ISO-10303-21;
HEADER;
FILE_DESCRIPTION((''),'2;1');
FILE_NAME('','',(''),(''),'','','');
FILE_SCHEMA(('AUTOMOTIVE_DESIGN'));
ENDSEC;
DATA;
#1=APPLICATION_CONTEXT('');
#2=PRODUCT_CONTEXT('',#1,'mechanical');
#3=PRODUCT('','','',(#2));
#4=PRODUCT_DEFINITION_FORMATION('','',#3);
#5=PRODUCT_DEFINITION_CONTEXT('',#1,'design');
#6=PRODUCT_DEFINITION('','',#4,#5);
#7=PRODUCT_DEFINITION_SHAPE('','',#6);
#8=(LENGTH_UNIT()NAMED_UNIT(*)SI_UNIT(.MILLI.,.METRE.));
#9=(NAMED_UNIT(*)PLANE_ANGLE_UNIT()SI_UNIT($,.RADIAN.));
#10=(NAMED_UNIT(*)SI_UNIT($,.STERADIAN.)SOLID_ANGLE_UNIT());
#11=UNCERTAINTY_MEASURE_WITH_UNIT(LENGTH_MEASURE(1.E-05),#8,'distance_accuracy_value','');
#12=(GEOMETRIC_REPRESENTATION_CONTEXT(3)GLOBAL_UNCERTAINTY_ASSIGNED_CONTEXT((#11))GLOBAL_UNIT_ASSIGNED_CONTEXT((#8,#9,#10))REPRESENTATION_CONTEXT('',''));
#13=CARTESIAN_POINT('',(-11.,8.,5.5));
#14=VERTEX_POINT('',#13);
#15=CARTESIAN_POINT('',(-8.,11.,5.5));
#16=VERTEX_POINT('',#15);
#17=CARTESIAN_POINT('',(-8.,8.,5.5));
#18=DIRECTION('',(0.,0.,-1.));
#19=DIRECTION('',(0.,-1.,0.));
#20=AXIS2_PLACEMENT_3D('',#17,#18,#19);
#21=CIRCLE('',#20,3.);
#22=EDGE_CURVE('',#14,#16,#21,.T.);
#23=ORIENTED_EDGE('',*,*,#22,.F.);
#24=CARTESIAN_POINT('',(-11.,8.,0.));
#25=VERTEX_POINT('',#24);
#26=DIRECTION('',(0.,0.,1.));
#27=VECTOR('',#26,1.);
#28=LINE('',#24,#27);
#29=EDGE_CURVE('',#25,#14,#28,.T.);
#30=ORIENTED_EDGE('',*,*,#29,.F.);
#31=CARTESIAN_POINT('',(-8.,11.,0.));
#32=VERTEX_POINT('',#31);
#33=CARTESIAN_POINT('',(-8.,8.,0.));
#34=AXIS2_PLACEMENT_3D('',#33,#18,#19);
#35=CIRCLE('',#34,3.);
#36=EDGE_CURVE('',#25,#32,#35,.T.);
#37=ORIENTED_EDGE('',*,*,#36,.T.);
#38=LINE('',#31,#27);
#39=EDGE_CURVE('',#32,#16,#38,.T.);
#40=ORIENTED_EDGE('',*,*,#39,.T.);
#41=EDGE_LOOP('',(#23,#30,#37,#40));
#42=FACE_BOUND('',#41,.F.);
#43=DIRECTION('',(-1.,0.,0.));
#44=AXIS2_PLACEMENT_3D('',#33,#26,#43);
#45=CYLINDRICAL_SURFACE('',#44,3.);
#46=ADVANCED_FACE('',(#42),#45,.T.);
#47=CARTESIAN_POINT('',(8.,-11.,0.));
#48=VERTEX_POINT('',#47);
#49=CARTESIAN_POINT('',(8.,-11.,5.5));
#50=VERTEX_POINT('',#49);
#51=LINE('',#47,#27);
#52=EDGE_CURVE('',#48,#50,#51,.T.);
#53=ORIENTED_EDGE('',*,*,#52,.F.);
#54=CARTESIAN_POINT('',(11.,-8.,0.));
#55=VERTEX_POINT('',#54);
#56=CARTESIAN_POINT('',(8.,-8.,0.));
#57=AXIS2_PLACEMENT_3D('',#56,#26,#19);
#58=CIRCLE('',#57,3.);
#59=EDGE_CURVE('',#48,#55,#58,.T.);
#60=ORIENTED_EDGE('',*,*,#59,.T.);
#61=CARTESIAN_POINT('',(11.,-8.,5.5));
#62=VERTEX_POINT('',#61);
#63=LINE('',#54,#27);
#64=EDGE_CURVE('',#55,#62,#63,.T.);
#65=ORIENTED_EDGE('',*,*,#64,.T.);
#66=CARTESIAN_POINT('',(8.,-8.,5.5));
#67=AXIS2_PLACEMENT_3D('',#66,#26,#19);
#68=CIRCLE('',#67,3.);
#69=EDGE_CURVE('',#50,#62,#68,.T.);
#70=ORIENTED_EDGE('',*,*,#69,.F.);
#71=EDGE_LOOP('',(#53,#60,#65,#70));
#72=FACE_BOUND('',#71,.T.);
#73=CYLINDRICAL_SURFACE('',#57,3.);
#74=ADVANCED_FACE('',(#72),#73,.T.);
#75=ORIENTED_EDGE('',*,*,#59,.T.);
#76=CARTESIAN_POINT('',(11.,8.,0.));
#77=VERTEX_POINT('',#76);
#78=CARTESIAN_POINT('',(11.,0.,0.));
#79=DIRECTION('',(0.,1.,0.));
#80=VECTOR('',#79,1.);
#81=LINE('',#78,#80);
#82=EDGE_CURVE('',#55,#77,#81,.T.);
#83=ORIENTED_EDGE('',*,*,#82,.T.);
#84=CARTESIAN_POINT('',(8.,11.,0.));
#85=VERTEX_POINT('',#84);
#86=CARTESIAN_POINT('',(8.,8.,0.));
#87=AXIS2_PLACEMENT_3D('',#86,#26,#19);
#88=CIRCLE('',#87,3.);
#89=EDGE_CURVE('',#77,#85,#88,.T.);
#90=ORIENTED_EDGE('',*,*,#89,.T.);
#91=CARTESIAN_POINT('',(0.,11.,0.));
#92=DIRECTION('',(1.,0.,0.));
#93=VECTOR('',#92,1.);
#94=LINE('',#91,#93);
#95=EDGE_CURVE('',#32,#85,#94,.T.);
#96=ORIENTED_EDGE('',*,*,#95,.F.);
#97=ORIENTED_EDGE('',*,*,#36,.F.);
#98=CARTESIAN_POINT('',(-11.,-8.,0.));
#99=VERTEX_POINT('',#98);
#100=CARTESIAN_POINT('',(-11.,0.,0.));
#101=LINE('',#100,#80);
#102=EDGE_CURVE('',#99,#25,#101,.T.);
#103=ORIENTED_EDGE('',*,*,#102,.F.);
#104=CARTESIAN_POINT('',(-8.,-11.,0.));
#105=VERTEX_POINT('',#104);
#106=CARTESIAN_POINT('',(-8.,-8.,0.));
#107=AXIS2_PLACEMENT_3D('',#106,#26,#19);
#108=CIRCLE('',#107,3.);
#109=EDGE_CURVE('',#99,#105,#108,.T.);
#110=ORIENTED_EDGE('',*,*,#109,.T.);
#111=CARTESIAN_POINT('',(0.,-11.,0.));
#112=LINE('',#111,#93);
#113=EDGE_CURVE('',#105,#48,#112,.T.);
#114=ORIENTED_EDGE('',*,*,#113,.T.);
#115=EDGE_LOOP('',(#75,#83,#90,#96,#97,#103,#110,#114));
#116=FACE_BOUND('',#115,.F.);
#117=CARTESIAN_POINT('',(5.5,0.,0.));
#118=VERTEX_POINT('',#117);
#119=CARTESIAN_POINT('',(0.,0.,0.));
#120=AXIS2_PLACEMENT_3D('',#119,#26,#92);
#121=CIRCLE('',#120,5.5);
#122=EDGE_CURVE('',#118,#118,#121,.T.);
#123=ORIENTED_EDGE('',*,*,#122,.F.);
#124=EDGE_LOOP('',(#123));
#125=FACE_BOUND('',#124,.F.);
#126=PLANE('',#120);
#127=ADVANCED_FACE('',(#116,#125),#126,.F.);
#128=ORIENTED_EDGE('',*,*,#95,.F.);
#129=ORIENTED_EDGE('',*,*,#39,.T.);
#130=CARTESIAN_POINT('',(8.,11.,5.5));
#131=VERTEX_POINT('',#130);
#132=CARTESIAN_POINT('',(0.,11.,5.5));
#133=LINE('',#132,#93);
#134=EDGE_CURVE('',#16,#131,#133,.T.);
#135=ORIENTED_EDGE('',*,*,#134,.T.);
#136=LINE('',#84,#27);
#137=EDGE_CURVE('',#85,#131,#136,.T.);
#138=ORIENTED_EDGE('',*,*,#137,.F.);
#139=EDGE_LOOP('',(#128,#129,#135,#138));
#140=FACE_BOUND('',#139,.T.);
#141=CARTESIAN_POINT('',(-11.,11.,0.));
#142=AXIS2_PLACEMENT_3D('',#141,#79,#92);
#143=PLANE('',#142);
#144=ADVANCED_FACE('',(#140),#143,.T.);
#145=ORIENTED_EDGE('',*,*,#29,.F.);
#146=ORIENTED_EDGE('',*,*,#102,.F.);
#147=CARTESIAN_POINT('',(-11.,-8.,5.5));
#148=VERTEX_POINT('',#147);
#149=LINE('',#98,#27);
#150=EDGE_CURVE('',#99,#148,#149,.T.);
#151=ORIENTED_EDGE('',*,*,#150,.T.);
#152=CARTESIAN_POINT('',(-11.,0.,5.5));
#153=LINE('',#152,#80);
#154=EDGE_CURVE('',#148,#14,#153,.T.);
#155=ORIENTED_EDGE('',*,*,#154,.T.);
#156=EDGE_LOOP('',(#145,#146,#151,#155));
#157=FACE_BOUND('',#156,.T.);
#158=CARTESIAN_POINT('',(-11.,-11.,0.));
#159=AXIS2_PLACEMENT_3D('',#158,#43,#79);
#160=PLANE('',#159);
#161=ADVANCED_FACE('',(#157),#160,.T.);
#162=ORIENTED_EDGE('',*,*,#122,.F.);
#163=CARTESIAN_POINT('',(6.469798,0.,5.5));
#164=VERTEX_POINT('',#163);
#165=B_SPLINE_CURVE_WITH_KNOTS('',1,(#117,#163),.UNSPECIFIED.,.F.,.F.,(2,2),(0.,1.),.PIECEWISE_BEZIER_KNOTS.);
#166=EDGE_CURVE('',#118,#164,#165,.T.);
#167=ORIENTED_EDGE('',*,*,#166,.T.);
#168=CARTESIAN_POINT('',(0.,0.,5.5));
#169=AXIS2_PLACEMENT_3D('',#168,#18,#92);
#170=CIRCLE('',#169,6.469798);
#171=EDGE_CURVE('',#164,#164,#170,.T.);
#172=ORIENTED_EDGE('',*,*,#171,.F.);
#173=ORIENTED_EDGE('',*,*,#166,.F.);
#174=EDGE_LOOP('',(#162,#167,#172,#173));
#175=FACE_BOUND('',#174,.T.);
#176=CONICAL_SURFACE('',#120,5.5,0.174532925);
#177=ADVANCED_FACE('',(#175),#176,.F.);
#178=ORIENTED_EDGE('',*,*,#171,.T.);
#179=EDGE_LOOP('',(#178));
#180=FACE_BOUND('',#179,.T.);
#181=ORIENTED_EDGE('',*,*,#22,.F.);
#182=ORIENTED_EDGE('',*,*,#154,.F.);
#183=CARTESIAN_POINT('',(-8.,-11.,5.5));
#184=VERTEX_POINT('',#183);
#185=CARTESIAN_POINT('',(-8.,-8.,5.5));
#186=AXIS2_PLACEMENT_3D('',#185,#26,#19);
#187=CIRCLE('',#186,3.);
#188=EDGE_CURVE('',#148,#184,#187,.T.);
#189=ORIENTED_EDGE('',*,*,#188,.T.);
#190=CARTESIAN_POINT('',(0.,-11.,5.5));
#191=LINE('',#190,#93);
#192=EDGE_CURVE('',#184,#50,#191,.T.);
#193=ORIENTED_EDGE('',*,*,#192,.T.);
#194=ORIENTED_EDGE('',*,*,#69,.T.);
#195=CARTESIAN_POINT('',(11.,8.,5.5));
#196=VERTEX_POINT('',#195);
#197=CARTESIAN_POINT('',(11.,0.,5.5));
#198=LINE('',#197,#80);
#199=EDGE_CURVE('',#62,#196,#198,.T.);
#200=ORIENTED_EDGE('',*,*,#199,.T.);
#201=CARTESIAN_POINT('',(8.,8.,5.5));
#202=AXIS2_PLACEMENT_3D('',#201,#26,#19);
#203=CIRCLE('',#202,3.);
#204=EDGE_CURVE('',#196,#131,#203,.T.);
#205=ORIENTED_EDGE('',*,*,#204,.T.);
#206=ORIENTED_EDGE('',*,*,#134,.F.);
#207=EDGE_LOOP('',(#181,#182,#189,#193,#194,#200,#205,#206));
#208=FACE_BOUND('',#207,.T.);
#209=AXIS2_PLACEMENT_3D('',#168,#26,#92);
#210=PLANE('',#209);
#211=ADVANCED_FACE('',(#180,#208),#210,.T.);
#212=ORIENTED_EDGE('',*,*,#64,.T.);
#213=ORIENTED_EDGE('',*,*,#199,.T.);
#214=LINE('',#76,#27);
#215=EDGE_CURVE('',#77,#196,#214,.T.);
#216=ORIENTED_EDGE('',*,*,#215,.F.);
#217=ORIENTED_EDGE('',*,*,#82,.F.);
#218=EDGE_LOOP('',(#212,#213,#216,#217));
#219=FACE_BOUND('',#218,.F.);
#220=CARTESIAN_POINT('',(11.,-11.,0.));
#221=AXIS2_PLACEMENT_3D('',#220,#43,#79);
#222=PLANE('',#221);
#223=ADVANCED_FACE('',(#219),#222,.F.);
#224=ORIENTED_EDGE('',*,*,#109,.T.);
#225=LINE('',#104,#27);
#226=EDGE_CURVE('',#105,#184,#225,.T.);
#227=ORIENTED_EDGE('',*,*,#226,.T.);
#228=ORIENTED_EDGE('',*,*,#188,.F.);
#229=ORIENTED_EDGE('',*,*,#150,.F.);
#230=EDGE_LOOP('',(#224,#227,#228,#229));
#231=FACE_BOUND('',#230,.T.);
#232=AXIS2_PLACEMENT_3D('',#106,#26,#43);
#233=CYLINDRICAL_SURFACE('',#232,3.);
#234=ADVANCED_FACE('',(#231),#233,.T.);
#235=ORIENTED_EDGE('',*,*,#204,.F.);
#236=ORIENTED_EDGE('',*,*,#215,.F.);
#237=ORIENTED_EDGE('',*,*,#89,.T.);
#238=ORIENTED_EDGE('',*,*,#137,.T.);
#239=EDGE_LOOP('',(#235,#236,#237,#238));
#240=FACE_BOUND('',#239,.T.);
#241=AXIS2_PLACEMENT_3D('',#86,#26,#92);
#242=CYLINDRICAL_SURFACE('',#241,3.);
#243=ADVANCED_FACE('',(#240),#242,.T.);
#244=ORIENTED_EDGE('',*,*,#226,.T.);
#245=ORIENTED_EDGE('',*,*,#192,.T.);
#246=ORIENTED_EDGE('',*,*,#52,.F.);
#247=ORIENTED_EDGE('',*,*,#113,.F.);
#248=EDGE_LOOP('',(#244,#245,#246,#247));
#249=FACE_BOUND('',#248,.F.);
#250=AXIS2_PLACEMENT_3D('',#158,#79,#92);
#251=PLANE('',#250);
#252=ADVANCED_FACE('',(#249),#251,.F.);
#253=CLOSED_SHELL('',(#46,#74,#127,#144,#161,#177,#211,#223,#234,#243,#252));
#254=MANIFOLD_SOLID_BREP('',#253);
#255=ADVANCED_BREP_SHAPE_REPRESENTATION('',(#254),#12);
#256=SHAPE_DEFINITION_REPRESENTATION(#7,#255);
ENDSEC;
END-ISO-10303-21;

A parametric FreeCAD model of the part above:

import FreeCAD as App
import Part
import Sketcher

V = App.Vector
Q = App.Units.Quantity


def edges_at(feature, points):
    """Names of the edges that pass closest to the given points."""
    edges = feature.Shape.Edges
    near = lambda p: min(range(len(edges)), key=lambda i: edges[i].distToShape(Part.Vertex(*p))[0])
    return sorted({f"Edge{near(p) + 1}" for p in points})

doc = App.newDocument("Part")
body = doc.addObject("PartDesign::Body", "Body")

# Sketch on XY plane
sketch1 = doc.addObject("Sketcher::SketchObject", "Sketch")
body.addObject(sketch1)
sketch1.AttachmentSupport = (doc.XY_Plane, [""])
sketch1.MapMode = "FlatFace"
sketch1.addGeometry(Part.LineSegment(V(-11, 11, 0), V(-11, -11, 0)), False)
sketch1.addGeometry(Part.LineSegment(V(-11, -11, 0), V(11, -11, 0)), False)
sketch1.addGeometry(Part.LineSegment(V(11, -11, 0), V(11, 11, 0)), False)
sketch1.addGeometry(Part.LineSegment(V(11, 11, 0), V(-11, 11, 0)), False)
sketch1.addConstraint(Sketcher.Constraint("Coincident", 0, 2, 1, 1))
sketch1.addConstraint(Sketcher.Constraint("Coincident", 1, 2, 2, 1))
sketch1.addConstraint(Sketcher.Constraint("Coincident", 2, 2, 3, 1))
sketch1.addConstraint(Sketcher.Constraint("Coincident", 3, 2, 0, 1))
sketch1.addConstraint(Sketcher.Constraint("Vertical", 0))
sketch1.addConstraint(Sketcher.Constraint("Horizontal", 1))
sketch1.addConstraint(Sketcher.Constraint("Vertical", 2))
sketch1.addConstraint(Sketcher.Constraint("Horizontal", 3))
sketch1.addConstraint(Sketcher.Constraint("Symmetric", 0, 2, 2, 2, -1, 1))
sketch1.addConstraint(Sketcher.Constraint("Equal", 3, 0))
sketch1.addConstraint(Sketcher.Constraint("DistanceX", 1, 1, 1, 2, Q("22 mm")))
pad1 = doc.addObject("PartDesign::Pad", "Pad")
body.addObject(pad1)
pad1.Profile = sketch1
pad1.Length = 5.5
doc.recompute()

fillet = doc.addObject("PartDesign::Fillet", "Fillet")
body.addObject(fillet)
fillet.Base = (pad1, edges_at(pad1, [
    (11, -11, 2.75),
    (11, 11, 2.75),
    (-11, 11, 2.75),
    (-11, -11, 2.75),
]))
fillet.Radius = 3

# Sketch on XY plane
sketch2 = doc.addObject("Sketcher::SketchObject", "Sketch001")
body.addObject(sketch2)
sketch2.AttachmentSupport = (doc.XY_Plane, [""])
sketch2.MapMode = "FlatFace"
sketch2.addGeometry(Part.Circle(V(0, 0, 0), V(0, 0, 1), 6), False)
sketch2.addConstraint(Sketcher.Constraint("Coincident", 0, 3, -1, 1))
sketch2.addConstraint(Sketcher.Constraint("Diameter", 0, Q("11 mm")))
pocket1 = doc.addObject("PartDesign::Pocket", "Pocket")
body.addObject(pocket1)
pocket1.Profile = sketch2
pocket1.Length = 5.5
pocket1.Reversed = True
pocket1.TaperAngle = 10

doc.recompute()
